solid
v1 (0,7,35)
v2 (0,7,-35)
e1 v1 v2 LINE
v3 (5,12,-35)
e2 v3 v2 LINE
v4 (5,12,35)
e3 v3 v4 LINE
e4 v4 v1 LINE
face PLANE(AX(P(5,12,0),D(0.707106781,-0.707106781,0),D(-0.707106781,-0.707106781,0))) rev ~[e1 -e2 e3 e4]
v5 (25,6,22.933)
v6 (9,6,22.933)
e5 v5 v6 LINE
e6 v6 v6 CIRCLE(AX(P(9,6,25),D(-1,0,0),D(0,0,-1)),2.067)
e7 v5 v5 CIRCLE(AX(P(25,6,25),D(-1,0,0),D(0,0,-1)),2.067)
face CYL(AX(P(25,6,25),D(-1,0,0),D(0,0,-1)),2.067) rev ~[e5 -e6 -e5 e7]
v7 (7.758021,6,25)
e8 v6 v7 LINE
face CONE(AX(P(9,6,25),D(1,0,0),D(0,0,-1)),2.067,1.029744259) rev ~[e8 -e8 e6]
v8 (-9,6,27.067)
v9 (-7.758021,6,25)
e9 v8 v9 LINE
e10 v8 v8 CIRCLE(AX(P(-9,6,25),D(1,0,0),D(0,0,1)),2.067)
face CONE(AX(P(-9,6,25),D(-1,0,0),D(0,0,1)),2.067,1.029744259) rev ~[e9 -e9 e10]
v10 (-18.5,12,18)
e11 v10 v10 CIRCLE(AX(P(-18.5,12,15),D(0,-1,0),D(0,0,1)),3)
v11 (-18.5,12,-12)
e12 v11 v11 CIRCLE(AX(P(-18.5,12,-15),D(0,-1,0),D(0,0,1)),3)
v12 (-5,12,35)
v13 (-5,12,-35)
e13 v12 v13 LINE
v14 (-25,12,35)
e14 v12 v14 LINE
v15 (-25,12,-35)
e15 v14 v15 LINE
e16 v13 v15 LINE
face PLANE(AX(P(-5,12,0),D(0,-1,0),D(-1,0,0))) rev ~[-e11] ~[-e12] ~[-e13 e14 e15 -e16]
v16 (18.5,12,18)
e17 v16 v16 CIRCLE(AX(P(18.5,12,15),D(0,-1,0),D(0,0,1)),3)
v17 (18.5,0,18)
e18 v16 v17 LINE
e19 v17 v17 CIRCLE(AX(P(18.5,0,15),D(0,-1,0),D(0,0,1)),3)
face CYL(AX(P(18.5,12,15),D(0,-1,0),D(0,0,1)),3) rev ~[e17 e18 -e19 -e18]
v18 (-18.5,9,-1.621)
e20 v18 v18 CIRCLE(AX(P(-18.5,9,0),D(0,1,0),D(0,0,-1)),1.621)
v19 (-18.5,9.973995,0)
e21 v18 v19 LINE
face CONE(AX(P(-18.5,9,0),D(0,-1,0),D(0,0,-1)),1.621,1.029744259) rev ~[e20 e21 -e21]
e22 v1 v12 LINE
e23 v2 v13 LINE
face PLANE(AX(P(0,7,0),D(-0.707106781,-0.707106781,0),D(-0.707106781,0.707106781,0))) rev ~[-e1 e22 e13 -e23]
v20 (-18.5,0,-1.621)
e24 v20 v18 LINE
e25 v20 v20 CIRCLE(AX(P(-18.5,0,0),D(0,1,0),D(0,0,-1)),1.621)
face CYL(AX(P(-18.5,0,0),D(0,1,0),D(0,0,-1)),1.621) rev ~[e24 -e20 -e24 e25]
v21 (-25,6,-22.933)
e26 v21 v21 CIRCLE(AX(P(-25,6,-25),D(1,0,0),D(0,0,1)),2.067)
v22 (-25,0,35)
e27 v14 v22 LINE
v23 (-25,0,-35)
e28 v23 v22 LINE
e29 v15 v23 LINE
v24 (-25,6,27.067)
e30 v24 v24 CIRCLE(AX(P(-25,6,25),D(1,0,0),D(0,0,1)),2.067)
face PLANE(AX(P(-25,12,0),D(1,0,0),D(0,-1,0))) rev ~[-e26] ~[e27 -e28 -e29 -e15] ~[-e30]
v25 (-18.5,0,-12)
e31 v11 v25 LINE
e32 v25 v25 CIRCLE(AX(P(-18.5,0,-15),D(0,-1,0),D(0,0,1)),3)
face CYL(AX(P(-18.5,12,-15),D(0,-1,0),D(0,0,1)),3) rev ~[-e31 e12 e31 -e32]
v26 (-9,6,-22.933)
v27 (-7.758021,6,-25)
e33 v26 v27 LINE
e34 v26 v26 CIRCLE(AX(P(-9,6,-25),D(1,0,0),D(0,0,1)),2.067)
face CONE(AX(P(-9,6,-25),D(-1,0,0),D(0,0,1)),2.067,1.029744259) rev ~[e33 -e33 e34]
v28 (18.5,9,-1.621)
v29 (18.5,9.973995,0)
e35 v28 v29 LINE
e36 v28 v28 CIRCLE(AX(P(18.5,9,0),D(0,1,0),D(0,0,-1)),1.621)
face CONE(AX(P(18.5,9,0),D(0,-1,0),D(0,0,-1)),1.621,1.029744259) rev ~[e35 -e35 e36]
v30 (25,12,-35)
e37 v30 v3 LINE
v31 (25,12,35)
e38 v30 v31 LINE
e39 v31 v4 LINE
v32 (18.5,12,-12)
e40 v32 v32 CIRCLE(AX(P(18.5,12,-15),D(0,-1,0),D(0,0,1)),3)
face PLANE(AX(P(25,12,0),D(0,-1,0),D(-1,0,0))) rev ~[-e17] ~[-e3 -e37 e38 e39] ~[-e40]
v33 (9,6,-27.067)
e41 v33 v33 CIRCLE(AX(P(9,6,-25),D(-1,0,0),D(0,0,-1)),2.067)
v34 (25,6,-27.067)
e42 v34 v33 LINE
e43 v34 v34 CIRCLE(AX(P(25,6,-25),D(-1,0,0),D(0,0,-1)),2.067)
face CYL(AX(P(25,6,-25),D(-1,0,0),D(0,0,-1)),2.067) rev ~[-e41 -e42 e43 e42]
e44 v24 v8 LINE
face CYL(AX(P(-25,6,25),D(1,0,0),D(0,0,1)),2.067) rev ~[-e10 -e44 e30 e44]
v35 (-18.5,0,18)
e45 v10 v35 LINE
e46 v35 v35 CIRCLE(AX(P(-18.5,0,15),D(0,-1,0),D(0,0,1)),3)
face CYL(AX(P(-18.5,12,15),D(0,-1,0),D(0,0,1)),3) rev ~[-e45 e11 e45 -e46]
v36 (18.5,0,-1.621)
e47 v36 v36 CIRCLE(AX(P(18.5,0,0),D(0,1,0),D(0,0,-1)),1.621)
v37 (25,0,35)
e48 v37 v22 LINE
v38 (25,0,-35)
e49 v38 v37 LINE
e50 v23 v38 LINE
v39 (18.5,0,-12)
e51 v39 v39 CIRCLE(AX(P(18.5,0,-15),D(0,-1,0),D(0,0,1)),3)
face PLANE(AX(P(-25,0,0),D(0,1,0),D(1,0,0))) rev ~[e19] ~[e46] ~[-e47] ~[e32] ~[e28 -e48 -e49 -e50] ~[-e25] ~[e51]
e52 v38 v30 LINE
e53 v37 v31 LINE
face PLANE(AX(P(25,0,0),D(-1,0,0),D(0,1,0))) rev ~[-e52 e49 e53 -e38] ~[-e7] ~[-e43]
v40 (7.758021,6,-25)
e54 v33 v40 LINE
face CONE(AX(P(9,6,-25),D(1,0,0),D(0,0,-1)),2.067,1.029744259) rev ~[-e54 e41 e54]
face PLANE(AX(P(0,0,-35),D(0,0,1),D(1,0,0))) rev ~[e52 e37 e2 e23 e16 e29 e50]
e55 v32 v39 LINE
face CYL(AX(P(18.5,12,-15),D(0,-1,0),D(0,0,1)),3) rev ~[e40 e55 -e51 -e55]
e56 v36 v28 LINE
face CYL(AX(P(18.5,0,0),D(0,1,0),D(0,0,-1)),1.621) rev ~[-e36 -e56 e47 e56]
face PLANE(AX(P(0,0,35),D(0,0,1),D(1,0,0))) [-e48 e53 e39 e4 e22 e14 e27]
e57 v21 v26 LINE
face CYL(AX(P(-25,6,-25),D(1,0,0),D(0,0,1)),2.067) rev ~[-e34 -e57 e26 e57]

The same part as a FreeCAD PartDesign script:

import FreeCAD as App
import Part
import Sketcher
from FreeCAD import Vector
Q = App.Units.Quantity

doc = App.newDocument("Part")
body = doc.addObject("PartDesign::Body", "Body")

# Sketch on XY plane
sketch1 = doc.addObject("Sketcher::SketchObject", "Sketch")
body.addObject(sketch1)
sketch1.AttachmentSupport = (doc.XY_Plane, [""])
sketch1.MapMode = "FlatFace"
sketch1.addGeometry([
    Part.LineSegment(Vector(-25, 12, 0), Vector(-25, 0, 0)),  # 0
    Part.LineSegment(Vector(-25, 0, 0), Vector(25, 0, 0)),  # 1
    Part.LineSegment(Vector(25, 0, 0), Vector(25, 12, 0)),  # 2
    Part.LineSegment(Vector(25, 12, 0), Vector(5, 12, 0)),  # 3
    Part.LineSegment(Vector(5, 12, 0), Vector(0, 7, 0)),  # 4
    Part.LineSegment(Vector(0, 7, 0), Vector(-5, 12, 0)),  # 5
    Part.LineSegment(Vector(-5, 12, 0), Vector(-25, 12, 0)),  # 6
], False)
sketch1.addConstraint([
    Sketcher.Constraint("Coincident", 0, 2, 1, 1),
    Sketcher.Constraint("Coincident", 1, 2, 2, 1),
    Sketcher.Constraint("Coincident", 2, 2, 3, 1),
    Sketcher.Constraint("Coincident", 3, 2, 4, 1),
    Sketcher.Constraint("Coincident", 4, 2, 5, 1),
    Sketcher.Constraint("Coincident", 5, 2, 6, 1),
    Sketcher.Constraint("Coincident", 6, 2, 0, 1),
    Sketcher.Constraint("Vertical", 0),
    Sketcher.Constraint("Horizontal", 1),
    Sketcher.Constraint("Vertical", 2),
    Sketcher.Constraint("Horizontal", 3),
    Sketcher.Constraint("Horizontal", 6),
    Sketcher.Constraint("Symmetric", 0, 2, 1, 2, -1, 1),
    Sketcher.Constraint("Symmetric", 3, 2, 5, 2, -2),
    Sketcher.Constraint("PointOnObject", 4, 2, -2),
    Sketcher.Constraint("Perpendicular", 4, 5),
    Sketcher.Constraint("DistanceX", 1, 1, 1, 2, Q("50 mm")),
    Sketcher.Constraint("DistanceY", 0, 2, 0, 1, Q("12 mm")),
    Sketcher.Constraint("DistanceX", -1, 1, 3, 2, Q("5 mm")),
])
pad1 = doc.addObject("PartDesign::Pad", "Pad")
body.addObject(pad1)
pad1.Profile = sketch1
pad1.Length = 70
pad1.Midplane = True

# Sketch on XZ plane
sketch2 = doc.addObject("Sketcher::SketchObject", "Sketch001")
body.addObject(sketch2)
sketch2.AttachmentSupport = (doc.XZ_Plane, [""])
sketch2.MapMode = "FlatFace"
sketch2.AttachmentOffset = App.Placement(Vector(0, 0, -12), App.Rotation())
sketch2.addGeometry([
    Part.Circle(Vector(-18.5, -15, 0), Vector(0, 0, 1), 3),
    Part.Circle(Vector(18.5, -15, 0), Vector(0, 0, 1), 3),
    Part.Circle(Vector(18.5, 15, 0), Vector(0, 0, 1), 3),
    Part.Circle(Vector(-18.5, 15, 0), Vector(0, 0, 1), 3),
], False)
sketch2.addConstraint([
    Sketcher.Constraint("Equal", 0, 1),
    Sketcher.Constraint("Equal", 1, 2),
    Sketcher.Constraint("Equal", 2, 3),
    Sketcher.Constraint("Symmetric", 0, 3, 2, 3, -1, 1),
    Sketcher.Constraint("Symmetric", 1, 3, 3, 3, -1, 1),
    Sketcher.Constraint("Symmetric", 0, 3, 1, 3, -2),
    Sketcher.Constraint("Diameter", 0, Q("6 mm")),
    Sketcher.Constraint("DistanceY", 0, 3, -1, 1, Q("15 mm")),
    Sketcher.Constraint("DistanceX", 0, 3, 1, 3, Q("37 mm")),
])
doc.recompute()
hole = doc.addObject("PartDesign::Hole", "Hole")
body.addObject(hole)
hole.Profile = sketch2
hole.ThreadType = "None"
hole.Diameter = 6
hole.DepthType = "ThroughAll"
hole.Reversed = True

# Sketch on XZ plane
sketch3 = doc.addObject("Sketcher::SketchObject", "Sketch002")
body.addObject(sketch3)
sketch3.AttachmentSupport = (doc.XZ_Plane, [""])
sketch3.MapMode = "FlatFace"
sketch3.addGeometry([
    Part.Circle(Vector(-18.5, 0, 0), Vector(0, 0, 1), 1.6),
    Part.Circle(Vector(18.5, 0, 0), Vector(0, 0, 1), 1.6),
], False)
sketch3.addConstraint([
    Sketcher.Constraint("Equal", 0, 1),
    Sketcher.Constraint("Symmetric", 0, 3, 1, 3, -1, 1),
    Sketcher.Constraint("PointOnObject", 0, 3, -1),
    Sketcher.Constraint("Diameter", 0, Q("3.242 mm")),
    Sketcher.Constraint("DistanceX", 0, 3, 1, 3, Q("37 mm")),
])
doc.recompute()
hole2 = doc.addObject("PartDesign::Hole", "Hole001")
body.addObject(hole2)
hole2.Profile = sketch3
hole2.ThreadType = "None"
hole2.Diameter = 3.242
hole2.DepthType = "Dimension"
hole2.Depth = 9
hole2.DrillPoint = "Angled"
hole2.DrillPointAngle = 118

# Sketch on YZ plane
sketch4 = doc.addObject("Sketcher::SketchObject", "Sketch003")
body.addObject(sketch4)
sketch4.AttachmentSupport = (doc.YZ_Plane, [""])
sketch4.MapMode = "FlatFace"
sketch4.AttachmentOffset = App.Placement(Vector(0, 0, 25), App.Rotation())
sketch4.addGeometry([
    Part.Circle(Vector(6, 25, 0), Vector(0, 0, 1), 2.1),
    Part.Circle(Vector(6, -25, 0), Vector(0, 0, 1), 2.1),
], False)
sketch4.addConstraint([
    Sketcher.Constraint("Equal", 0, 1),
    Sketcher.Constraint("Symmetric", 0, 3, 1, 3, -1),
    Sketcher.Constraint("Diameter", 0, Q("4.134 mm")),
    Sketcher.Constraint("DistanceX", -1, 1, 0, 3, Q("6 mm")),
    Sketcher.Constraint("DistanceY", -1, 1, 0, 3, Q("25 mm")),
])
doc.recompute()
hole3 = doc.addObject("PartDesign::Hole", "Hole002")
body.addObject(hole3)
hole3.Profile = sketch4
hole3.ThreadType = "None"
hole3.Diameter = 4.134
hole3.DepthType = "Dimension"
hole3.Depth = 16
hole3.DrillPoint = "Angled"
hole3.DrillPointAngle = 118
doc.recompute()

polarpattern = doc.addObject("PartDesign::PolarPattern", "PolarPattern")
body.addObject(polarpattern)
polarpattern.Originals = [hole3]
polarpattern.Axis = (doc.Y_Axis, [""])
polarpattern.Angle = 360
polarpattern.Occurrences = 2
body.Tip = polarpattern

doc.recompute()
